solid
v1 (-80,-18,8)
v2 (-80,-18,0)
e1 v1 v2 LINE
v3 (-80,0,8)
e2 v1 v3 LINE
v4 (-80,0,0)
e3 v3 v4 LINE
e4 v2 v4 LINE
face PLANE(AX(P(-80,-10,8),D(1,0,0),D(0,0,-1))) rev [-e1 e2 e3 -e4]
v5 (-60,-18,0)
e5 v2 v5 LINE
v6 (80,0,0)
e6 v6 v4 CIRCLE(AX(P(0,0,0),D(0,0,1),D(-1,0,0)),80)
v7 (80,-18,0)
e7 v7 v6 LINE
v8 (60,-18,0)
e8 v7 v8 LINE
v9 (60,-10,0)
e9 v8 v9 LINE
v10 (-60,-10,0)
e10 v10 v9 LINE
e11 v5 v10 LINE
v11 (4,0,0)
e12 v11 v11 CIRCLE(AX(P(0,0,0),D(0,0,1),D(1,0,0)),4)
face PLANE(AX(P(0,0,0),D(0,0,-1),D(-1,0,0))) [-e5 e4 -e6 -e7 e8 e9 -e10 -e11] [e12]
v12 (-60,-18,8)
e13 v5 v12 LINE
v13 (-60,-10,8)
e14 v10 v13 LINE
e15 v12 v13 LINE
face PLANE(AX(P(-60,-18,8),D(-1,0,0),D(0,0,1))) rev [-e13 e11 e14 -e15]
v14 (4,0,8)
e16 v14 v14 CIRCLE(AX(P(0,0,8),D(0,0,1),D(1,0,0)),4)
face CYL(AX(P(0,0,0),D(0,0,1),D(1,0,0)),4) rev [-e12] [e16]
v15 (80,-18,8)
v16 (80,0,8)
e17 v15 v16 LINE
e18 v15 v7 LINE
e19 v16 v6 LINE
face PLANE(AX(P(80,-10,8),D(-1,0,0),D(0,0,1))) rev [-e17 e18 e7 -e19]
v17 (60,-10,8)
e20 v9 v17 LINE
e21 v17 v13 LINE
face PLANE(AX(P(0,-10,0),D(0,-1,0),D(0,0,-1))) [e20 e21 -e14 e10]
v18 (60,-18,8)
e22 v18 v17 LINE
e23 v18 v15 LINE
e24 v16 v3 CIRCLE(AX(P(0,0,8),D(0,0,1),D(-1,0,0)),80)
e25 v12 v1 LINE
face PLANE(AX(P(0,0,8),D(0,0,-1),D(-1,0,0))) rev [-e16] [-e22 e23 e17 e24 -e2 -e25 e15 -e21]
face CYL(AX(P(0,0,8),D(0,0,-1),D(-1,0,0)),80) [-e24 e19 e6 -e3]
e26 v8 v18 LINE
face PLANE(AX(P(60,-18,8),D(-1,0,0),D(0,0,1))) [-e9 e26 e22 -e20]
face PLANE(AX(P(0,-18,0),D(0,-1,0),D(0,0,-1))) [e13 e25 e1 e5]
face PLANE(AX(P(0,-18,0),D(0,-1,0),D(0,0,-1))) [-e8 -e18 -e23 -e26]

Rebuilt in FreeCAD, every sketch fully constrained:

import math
import FreeCAD as App
import Part
import Sketcher

V = App.Vector
Q = App.Units.Quantity

doc = App.newDocument("Part")
body = doc.addObject("PartDesign::Body", "Body")

sketch1 = body.newObject("Sketcher::SketchObject", "Sketch")
sketch1.AttachmentSupport = (doc.getObject("XY_Plane"), [""])
sketch1.MapMode = "FlatFace"
sketch1.addGeometry([
    Part.LineSegment(V(-80, 0, 0), V(80, 0, 0)),
    Part.ArcOfCircle(Part.Circle(V(0, 0, 0), V(0, 0, 1), 80), math.radians(0), math.radians(180)),
], False)
sketch1.addConstraint([
    Sketcher.Constraint("Coincident", 0, 1, 1, 2),
    Sketcher.Constraint("Coincident", 1, 1, 0, 2),
    Sketcher.Constraint("Horizontal", 0),
    Sketcher.Constraint("Coincident", 1, 3, -1, 1),
    Sketcher.Constraint("PointOnObject", 0, 1, -1),
    Sketcher.Constraint("Radius", 1, Q("80 mm")),
])
pad1 = body.newObject("PartDesign::Pad", "Pad")
pad1.Profile = sketch1
pad1.Length = 8

sketch2 = body.newObject("Sketcher::SketchObject", "Sketch001")
sketch2.AttachmentSupport = (doc.getObject("XZ_Plane"), [""])
sketch2.MapMode = "FlatFace"
sketch2.addGeometry([
    Part.LineSegment(V(-80, 8, 0), V(-80, 0, 0)),
    Part.LineSegment(V(-80, 0, 0), V(80, 0, 0)),
    Part.LineSegment(V(80, 0, 0), V(80, 8, 0)),
    Part.LineSegment(V(80, 8, 0), V(-80, 8, 0)),
], False)
sketch2.addConstraint([
    Sketcher.Constraint("Coincident", 0, 2, 1, 1),
    Sketcher.Constraint("Coincident", 1, 2, 2, 1),
    Sketcher.Constraint("Coincident", 2, 2, 3, 1),
    Sketcher.Constraint("Coincident", 3, 2, 0, 1),
    Sketcher.Constraint("Vertical", 0),
    Sketcher.Constraint("Horizontal", 1),
    Sketcher.Constraint("Vertical", 2),
    Sketcher.Constraint("Horizontal", 3),
    Sketcher.Constraint("Symmetric", 0, 2, 1, 2, -1, 1),
    Sketcher.Constraint("DistanceX", 1, 1, 1, 2, Q("160 mm")),
    Sketcher.Constraint("DistanceY", 0, 2, 0, 1, Q("8 mm")),
])
pad2 = body.newObject("PartDesign::Pad", "Pad001")
pad2.Profile = sketch2
pad2.Length = 10

sketch3 = body.newObject("Sketcher::SketchObject", "Sketch002")
sketch3.AttachmentSupport = (doc.getObject("XZ_Plane"), [""])
sketch3.MapMode = "FlatFace"
sketch3.AttachmentOffset = App.Placement(V(0, 0, 10), App.Rotation())
sketch3.addGeometry([
    Part.LineSegment(V(-80, 8, 0), V(-80, 0, 0)),
    Part.LineSegment(V(-80, 0, 0), V(-60, 0, 0)),
    Part.LineSegment(V(-60, 0, 0), V(-60, 8, 0)),
    Part.LineSegment(V(-60, 8, 0), V(-80, 8, 0)),
], False)
sketch3.addConstraint([
    Sketcher.Constraint("Coincident", 0, 2, 1, 1),
    Sketcher.Constraint("Coincident", 1, 2, 2, 1),
    Sketcher.Constraint("Coincident", 2, 2, 3, 1),
    Sketcher.Constraint("Coincident", 3, 2, 0, 1),
    Sketcher.Constraint("Vertical", 0),
    Sketcher.Constraint("Horizontal", 1),
    Sketcher.Constraint("Vertical", 2),
    Sketcher.Constraint("Horizontal", 3),
    Sketcher.Constraint("PointOnObject", 0, 2, -1),
    Sketcher.Constraint("DistanceX", 1, 1, 1, 2, Q("20 mm")),
    Sketcher.Constraint("DistanceY", 0, 2, 0, 1, Q("8 mm")),
    Sketcher.Constraint("DistanceX", 0, 2, -1, 1, Q("80 mm")),
])
pad3 = body.newObject("PartDesign::Pad", "Pad002")
pad3.Profile = sketch3
pad3.Length = 8
doc.recompute()

mirrored = body.newObject("PartDesign::Mirrored", "Mirrored")
mirrored.Originals = [pad3]
mirrored.MirrorPlane = (doc.getObject("YZ_Plane"), [""])
body.Tip = mirrored

sketch4 = body.newObject("Sketcher::SketchObject", "Sketch003")
sketch4.AttachmentSupport = (doc.getObject("XY_Plane"), [""])
sketch4.MapMode = "FlatFace"
sketch4.AttachmentOffset = App.Placement(V(0, 0, 8), App.Rotation())
sketch4.addGeometry(Part.Circle(V(0, 0, 0), V(0, 0, 1), 4), False)
sketch4.addConstraint([
    Sketcher.Constraint("Coincident", 0, 3, -1, 1),
    Sketcher.Constraint("Diameter", 0, Q("8 mm")),
])
pocket1 = body.newObject("PartDesign::Pocket", "Pocket")
pocket1.Profile = sketch4
pocket1.Length = 8

doc.recompute()
